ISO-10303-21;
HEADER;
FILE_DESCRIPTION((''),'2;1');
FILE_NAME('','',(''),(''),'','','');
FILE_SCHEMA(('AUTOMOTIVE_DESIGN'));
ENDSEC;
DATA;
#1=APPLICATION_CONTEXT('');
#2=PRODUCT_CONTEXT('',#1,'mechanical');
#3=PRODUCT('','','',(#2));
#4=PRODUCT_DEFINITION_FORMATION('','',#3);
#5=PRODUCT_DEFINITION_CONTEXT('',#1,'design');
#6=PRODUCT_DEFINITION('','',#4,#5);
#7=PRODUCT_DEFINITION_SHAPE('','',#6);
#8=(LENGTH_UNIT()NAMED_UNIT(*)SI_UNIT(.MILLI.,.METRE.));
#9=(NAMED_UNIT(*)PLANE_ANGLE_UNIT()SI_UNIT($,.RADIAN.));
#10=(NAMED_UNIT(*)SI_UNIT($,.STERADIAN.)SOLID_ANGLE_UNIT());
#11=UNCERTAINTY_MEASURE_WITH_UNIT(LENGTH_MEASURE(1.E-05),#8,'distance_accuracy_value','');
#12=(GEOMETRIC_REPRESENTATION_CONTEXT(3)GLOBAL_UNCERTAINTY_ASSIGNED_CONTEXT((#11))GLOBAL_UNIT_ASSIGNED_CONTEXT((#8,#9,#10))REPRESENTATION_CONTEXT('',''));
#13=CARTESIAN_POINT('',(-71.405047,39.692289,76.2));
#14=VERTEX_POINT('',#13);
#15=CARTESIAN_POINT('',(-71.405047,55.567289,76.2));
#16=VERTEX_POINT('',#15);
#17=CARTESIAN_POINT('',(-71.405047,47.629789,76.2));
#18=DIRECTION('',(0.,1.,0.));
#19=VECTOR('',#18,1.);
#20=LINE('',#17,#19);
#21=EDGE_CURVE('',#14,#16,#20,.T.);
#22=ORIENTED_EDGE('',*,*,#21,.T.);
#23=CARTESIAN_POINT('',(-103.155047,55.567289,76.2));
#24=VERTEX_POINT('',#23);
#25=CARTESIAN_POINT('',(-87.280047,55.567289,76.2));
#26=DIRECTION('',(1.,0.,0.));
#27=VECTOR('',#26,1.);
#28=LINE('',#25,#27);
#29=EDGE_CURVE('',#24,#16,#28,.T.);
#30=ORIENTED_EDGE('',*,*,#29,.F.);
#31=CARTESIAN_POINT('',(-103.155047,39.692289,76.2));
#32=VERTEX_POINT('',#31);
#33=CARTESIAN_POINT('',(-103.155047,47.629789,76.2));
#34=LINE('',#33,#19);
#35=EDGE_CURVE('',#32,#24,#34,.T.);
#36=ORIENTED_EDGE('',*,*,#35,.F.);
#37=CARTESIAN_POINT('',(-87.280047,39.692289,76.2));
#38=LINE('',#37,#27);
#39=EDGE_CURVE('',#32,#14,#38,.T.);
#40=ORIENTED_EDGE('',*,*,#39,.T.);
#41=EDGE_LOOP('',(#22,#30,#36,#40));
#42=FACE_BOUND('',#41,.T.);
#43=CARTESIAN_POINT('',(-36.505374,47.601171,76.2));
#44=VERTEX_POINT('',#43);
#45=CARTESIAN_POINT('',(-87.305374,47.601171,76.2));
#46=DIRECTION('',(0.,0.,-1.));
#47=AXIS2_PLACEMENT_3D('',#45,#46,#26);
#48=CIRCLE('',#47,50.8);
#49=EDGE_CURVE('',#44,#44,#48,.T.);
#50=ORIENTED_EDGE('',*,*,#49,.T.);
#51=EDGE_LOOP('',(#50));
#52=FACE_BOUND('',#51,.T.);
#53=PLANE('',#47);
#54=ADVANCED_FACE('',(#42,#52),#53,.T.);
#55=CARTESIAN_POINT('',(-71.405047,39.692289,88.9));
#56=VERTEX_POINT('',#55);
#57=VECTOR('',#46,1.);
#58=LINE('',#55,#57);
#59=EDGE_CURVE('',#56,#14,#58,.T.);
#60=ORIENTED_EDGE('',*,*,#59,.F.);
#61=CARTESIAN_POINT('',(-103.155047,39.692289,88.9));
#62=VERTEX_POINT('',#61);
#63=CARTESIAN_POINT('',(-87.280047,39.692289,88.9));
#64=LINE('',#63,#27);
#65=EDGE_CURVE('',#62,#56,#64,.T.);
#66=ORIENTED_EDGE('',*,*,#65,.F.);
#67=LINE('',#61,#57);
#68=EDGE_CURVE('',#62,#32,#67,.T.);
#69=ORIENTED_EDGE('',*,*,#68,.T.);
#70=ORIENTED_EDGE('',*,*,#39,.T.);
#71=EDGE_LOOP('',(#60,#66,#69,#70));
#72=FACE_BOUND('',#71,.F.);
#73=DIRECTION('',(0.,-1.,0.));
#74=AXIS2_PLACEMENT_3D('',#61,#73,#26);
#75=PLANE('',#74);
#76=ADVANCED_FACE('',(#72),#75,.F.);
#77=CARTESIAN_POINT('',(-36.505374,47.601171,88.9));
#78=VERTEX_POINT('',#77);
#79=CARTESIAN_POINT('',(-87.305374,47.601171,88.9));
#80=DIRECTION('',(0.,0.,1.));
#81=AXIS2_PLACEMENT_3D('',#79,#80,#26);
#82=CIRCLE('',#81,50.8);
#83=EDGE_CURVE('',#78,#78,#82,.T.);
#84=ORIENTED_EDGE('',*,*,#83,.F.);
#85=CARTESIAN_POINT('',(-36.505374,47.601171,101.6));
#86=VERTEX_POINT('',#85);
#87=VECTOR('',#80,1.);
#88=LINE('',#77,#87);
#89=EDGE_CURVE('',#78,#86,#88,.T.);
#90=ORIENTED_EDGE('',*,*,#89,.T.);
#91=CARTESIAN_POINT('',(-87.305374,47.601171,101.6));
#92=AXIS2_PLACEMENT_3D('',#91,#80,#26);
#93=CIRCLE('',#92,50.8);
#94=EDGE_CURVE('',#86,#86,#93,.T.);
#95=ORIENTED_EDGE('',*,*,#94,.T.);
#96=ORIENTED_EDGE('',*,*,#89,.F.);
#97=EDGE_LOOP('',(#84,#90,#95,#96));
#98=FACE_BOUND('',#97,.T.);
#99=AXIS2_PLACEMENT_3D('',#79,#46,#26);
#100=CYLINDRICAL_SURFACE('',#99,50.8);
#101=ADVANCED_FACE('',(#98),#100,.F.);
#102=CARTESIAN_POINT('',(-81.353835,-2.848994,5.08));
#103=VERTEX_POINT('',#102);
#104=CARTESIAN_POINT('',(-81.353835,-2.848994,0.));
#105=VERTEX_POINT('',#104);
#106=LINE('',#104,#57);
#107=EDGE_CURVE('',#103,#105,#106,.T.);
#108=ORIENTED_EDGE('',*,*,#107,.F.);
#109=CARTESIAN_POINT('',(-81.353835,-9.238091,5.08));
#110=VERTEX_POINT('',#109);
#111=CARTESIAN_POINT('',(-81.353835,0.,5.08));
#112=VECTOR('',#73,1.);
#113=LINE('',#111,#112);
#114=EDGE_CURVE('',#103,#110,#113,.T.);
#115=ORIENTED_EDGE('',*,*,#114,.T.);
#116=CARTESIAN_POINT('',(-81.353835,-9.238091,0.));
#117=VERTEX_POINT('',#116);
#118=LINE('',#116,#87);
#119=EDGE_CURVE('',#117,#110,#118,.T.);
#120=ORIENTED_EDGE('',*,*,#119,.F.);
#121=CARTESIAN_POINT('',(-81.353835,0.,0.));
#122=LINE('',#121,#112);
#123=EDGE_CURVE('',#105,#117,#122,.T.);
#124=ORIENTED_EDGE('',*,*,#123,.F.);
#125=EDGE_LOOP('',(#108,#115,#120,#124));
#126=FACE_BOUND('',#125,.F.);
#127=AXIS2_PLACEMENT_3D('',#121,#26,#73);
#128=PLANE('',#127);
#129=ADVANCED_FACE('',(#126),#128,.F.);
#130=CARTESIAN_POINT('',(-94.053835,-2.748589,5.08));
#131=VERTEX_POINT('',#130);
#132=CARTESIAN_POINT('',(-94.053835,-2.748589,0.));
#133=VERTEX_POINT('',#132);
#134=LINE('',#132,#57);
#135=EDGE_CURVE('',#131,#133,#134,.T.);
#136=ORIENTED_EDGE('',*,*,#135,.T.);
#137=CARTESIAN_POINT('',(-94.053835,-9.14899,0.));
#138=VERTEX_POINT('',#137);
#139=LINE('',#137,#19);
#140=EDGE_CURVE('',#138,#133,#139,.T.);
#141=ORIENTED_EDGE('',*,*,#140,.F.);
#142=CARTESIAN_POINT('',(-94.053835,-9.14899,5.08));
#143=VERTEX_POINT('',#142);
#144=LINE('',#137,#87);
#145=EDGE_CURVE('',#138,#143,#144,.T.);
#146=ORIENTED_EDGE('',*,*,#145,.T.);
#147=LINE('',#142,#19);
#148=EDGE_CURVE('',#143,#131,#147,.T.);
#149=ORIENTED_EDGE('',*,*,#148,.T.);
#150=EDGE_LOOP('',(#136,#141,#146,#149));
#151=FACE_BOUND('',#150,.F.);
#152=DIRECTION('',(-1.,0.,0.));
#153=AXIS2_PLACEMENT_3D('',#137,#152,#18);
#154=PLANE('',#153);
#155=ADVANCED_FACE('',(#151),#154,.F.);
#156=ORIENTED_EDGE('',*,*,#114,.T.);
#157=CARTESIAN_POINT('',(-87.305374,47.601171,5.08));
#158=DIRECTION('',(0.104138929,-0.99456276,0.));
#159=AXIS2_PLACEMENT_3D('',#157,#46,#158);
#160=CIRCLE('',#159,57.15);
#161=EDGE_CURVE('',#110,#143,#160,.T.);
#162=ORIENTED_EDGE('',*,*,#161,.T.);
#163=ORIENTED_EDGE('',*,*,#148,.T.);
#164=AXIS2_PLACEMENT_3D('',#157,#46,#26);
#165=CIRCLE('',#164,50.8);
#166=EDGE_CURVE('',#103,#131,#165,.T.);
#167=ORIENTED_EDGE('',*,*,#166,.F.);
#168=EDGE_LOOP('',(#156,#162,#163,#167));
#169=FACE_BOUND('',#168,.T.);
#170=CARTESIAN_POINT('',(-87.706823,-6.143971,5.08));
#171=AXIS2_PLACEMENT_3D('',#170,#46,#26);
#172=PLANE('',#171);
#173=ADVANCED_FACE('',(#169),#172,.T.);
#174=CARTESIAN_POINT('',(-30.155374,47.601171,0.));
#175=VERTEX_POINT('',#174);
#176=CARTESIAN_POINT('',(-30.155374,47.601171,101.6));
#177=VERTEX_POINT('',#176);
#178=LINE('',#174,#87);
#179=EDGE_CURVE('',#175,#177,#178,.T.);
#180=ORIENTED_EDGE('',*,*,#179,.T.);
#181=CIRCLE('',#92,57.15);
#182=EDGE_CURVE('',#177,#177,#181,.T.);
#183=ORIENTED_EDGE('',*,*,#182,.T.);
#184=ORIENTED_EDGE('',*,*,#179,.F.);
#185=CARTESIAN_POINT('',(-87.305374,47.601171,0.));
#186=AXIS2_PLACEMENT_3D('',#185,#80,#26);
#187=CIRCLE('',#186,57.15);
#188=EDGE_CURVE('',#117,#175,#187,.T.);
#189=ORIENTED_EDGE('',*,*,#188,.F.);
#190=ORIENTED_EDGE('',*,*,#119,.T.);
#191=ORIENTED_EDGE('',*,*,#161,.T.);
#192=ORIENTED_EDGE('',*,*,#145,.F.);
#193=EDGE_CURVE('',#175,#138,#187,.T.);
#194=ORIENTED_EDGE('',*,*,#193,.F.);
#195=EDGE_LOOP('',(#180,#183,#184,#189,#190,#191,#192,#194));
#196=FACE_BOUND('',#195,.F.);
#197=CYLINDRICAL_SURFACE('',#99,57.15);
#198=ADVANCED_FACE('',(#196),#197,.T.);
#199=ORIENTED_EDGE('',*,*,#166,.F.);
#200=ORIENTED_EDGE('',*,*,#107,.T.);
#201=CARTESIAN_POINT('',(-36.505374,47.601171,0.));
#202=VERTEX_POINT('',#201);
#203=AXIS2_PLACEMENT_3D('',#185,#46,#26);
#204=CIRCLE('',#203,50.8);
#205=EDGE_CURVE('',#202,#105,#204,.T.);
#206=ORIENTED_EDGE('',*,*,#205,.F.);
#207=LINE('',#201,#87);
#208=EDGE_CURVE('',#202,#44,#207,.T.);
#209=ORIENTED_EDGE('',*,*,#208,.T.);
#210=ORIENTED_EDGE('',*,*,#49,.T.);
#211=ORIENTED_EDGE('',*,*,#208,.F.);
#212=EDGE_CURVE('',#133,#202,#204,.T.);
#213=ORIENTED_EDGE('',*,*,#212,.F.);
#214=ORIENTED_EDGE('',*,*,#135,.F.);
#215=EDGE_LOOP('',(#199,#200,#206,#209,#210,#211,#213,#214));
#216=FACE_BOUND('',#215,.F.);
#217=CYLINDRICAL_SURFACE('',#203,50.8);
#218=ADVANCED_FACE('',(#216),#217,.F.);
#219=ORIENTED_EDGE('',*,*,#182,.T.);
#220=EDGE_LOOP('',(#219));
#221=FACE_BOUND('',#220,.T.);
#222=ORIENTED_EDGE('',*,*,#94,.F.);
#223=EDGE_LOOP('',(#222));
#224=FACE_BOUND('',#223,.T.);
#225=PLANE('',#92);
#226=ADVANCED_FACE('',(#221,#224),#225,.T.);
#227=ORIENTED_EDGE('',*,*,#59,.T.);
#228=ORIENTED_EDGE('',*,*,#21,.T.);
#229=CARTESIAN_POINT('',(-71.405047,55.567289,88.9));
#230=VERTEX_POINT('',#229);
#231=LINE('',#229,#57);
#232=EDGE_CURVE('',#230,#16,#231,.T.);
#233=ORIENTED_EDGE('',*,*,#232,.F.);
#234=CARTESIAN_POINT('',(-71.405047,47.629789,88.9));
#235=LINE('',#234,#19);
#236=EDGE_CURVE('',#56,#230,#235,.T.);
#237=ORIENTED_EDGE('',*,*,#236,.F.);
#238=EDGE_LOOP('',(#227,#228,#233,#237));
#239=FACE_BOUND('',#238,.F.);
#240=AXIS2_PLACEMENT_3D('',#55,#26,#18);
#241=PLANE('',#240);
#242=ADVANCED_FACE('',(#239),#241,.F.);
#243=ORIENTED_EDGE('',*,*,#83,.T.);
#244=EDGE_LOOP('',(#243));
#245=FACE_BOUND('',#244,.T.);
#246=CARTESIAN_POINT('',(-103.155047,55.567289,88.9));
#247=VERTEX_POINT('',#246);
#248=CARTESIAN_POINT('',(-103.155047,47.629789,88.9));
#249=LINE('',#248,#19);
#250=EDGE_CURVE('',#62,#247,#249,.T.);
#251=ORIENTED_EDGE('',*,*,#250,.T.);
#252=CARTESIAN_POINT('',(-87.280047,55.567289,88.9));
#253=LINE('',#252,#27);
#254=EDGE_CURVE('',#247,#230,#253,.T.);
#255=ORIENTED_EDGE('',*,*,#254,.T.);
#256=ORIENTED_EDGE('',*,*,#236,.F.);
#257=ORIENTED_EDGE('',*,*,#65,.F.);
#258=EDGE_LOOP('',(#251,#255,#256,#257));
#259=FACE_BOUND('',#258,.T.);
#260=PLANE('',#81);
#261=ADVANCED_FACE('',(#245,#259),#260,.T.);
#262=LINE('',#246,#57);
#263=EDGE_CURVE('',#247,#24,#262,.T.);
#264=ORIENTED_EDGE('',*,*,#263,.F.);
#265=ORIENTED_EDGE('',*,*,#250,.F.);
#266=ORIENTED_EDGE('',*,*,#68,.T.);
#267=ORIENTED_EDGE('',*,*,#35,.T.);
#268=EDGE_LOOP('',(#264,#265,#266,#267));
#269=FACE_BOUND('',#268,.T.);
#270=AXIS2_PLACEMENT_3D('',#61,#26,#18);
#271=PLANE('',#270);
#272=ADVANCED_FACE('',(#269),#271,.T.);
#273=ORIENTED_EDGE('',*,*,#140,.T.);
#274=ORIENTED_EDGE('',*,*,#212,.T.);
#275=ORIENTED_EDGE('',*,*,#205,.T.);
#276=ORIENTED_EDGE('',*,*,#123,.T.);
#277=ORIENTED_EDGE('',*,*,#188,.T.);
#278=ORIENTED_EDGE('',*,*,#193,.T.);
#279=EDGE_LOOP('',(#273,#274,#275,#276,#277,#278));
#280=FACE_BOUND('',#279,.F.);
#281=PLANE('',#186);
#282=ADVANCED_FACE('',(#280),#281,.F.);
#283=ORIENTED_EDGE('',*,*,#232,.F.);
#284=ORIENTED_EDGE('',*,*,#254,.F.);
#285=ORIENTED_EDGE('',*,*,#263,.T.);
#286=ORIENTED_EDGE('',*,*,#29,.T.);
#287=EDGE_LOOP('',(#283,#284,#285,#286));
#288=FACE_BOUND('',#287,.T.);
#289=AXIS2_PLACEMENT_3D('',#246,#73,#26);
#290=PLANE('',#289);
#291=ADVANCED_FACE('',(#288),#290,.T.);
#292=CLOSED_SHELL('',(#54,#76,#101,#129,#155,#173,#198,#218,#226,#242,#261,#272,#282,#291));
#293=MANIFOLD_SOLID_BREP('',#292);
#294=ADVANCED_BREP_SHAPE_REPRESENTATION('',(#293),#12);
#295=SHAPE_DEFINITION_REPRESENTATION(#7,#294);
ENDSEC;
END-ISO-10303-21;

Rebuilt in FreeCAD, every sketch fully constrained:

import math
import FreeCAD as App
import Part
import Sketcher
Q = App.Units.Quantity


def add_polygon(sketch, points):
    """Adds a closed chain of lines whose ends are joined by coincident constraints."""
    first, n = sketch.GeometryCount, len(points)
    for a, b in zip(points, points[1:] + points[:1]):
        sketch.addGeometry(Part.LineSegment(App.Vector(*a, 0), App.Vector(*b, 0)), False)
    for i in range(n):
        sketch.addConstraint(Sketcher.Constraint("Coincident", first + i, 2, first + (i + 1) % n, 1))

doc = App.newDocument("Part")
body = doc.addObject("PartDesign::Body", "Body")

# Sketch on XY plane
sketch1 = body.newObject("Sketcher::SketchObject", "Sketch")
sketch1.AttachmentSupport = (doc.getObject("XY_Plane"), [""])
sketch1.MapMode = "FlatFace"
sketch1.addGeometry(Part.Circle(App.Vector(-87, 48, 0), App.Vector(0, 0, 1), 57), False)
sketch1.addConstraint(Sketcher.Constraint("Diameter", 0, Q("4.5 in")))
sketch1.addConstraint(Sketcher.Constraint("DistanceY", -1, 1, 0, 3, Q("47.601171 mm")))
sketch1.addConstraint(Sketcher.Constraint("DistanceX", 0, 3, -1, 1, Q("87.305374 mm")))
pad1 = body.newObject("PartDesign::Pad", "Pad")
pad1.Profile = sketch1
pad1.Length = Q("3.5 in")

# Sketch on XY plane
sketch2 = body.newObject("Sketcher::SketchObject", "Sketch001")
sketch2.AttachmentSupport = (doc.getObject("XY_Plane"), [""])
sketch2.MapMode = "FlatFace"
sketch2.addGeometry(Part.Circle(App.Vector(-87, 48, 0), App.Vector(0, 0, 1), 51), False)
sketch2.addConstraint(Sketcher.Constraint("Diameter", 0, Q("4 in")))
sketch2.addConstraint(Sketcher.Constraint("DistanceY", -1, 1, 0, 3, Q("47.601171 mm")))
sketch2.addConstraint(Sketcher.Constraint("DistanceX", 0, 3, -1, 1, Q("87.305374 mm")))
pocket1 = body.newObject("PartDesign::Pocket", "Pocket")
pocket1.Profile = sketch2
pocket1.Length = Q("3 in")
pocket1.Reversed = True

# Sketch on XY plane
sketch3 = body.newObject("Sketcher::SketchObject", "Sketch002")
sketch3.AttachmentSupport = (doc.getObject("XY_Plane"), [""])
sketch3.MapMode = "FlatFace"
sketch3.AttachmentOffset = App.Placement(App.Vector(0, 0, 3.5 * 25.4), App.Rotation())
add_polygon(sketch3, [(-103, 56), (-103, 40), (-71, 40), (-71, 56)])  # lines 0-3
sketch3.addConstraint(Sketcher.Constraint("Vertical", 0))
sketch3.addConstraint(Sketcher.Constraint("Horizontal", 1))
sketch3.addConstraint(Sketcher.Constraint("Vertical", 2))
sketch3.addConstraint(Sketcher.Constraint("Horizontal", 3))
sketch3.addConstraint(Sketcher.Constraint("DistanceX", 1, 1, 1, 2, Q("1.25 in")))
sketch3.addConstraint(Sketcher.Constraint("DistanceY", 0, 2, 0, 1, Q("0.625 in")))
sketch3.addConstraint(Sketcher.Constraint("DistanceY", -1, 1, 0, 2, Q("39.692289 mm")))
sketch3.addConstraint(Sketcher.Constraint("DistanceX", 0, 2, -1, 1, Q("103.155047 mm")))
pocket2 = body.newObject("PartDesign::Pocket", "Pocket001")
pocket2.Profile = sketch3
pocket2.Length = Q("0.5 in")

# Sketch on XY plane
sketch4 = body.newObject("Sketcher::SketchObject", "Sketch003")
sketch4.AttachmentSupport = (doc.getObject("XY_Plane"), [""])
sketch4.MapMode = "FlatFace"
sketch4.AttachmentOffset = App.Placement(App.Vector(0, 0, 3.5 * 25.4), App.Rotation())
sketch4.addGeometry(Part.Circle(App.Vector(-87, 48, 0), App.Vector(0, 0, 1), 57), False)
sketch4.addGeometry(Part.Circle(App.Vector(-87, 48, 0), App.Vector(0, 0, 1), 51), False)
sketch4.addConstraint(Sketcher.Constraint("Coincident", 1, 3, 0, 3))
sketch4.addConstraint(Sketcher.Constraint("Diameter", 1, Q("4 in")))
sketch4.addConstraint(Sketcher.Constraint("Diameter", 0, Q("4.5 in")))
sketch4.addConstraint(Sketcher.Constraint("DistanceY", -1, 1, 0, 3, Q("47.601171 mm")))
sketch4.addConstraint(Sketcher.Constraint("DistanceX", 0, 3, -1, 1, Q("87.305374 mm")))
pad2 = body.newObject("PartDesign::Pad", "Pad001")
pad2.Profile = sketch4
pad2.Length = Q("0.5 in")

# Sketch on XY plane
sketch5 = body.newObject("Sketcher::SketchObject", "Sketch004")
sketch5.AttachmentSupport = (doc.getObject("XY_Plane"), [""])
sketch5.MapMode = "FlatFace"
sketch5.addGeometry(Part.ArcOfCircle(Part.Circle(App.Vector(-87, 48, 0), App.Vector(0, 0, 1), 57), math.radians(-96.78), math.radians(-84.02)), False)
sketch5.addGeometry(Part.LineSegment(App.Vector(-94, -9, 0), App.Vector(-94, 0, 0)), False)
sketch5.addGeometry(Part.LineSegment(App.Vector(-94, 0, 0), App.Vector(-81, 0, 0)), False)
sketch5.addGeometry(Part.LineSegment(App.Vector(-81, 0, 0), App.Vector(-81, -9, 0)), False)
sketch5.addConstraint(Sketcher.Constraint("Coincident", 0, 1, 1, 1))
sketch5.addConstraint(Sketcher.Constraint("Coincident", 1, 2, 2, 1))
sketch5.addConstraint(Sketcher.Constraint("Coincident", 2, 2, 3, 1))
sketch5.addConstraint(Sketcher.Constraint("Coincident", 3, 2, 0, 2))
sketch5.addConstraint(Sketcher.Constraint("Vertical", 1))
sketch5.addConstraint(Sketcher.Constraint("Horizontal", 2))
sketch5.addConstraint(Sketcher.Constraint("Vertical", 3))
sketch5.addConstraint(Sketcher.Constraint("PointOnObject", 1, 2, -1))
sketch5.addConstraint(Sketcher.Constraint("Radius", 0, Q("2.25 in")))
sketch5.addConstraint(Sketcher.Constraint("DistanceX", 2, 1, 2, 2, Q("0.5 in")))
sketch5.addConstraint(Sketcher.Constraint("DistanceY", 1, 1, 1, 2, Q("9.14899 mm")))
sketch5.addConstraint(Sketcher.Constraint("DistanceY", 3, 2, 3, 1, Q("9.238091 mm")))
sketch5.addConstraint(Sketcher.Constraint("DistanceX", 0, 3, -1, 1, Q("87.305374 mm")))
pocket3 = body.newObject("PartDesign::Pocket", "Pocket002")
pocket3.Profile = sketch5
pocket3.Length = Q("0.2 in")
pocket3.Reversed = True

doc.recompute()
